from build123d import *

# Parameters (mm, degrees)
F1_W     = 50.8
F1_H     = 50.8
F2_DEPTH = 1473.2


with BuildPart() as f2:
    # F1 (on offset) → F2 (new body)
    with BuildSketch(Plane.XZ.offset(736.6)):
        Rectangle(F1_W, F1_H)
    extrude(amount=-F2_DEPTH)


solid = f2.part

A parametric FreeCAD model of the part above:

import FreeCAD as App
import Part
import Sketcher
Q = App.Units.Quantity


def add_polygon(sketch, points):
    """Adds a closed chain of lines whose ends are joined by coincident constraints."""
    first, n = sketch.GeometryCount, len(points)
    for a, b in zip(points, points[1:] + points[:1]):
        sketch.addGeometry(Part.LineSegment(App.Vector(*a, 0), App.Vector(*b, 0)), False)
    for i in range(n):
        sketch.addConstraint(Sketcher.Constraint("Coincident", first + i, 2, first + (i + 1) % n, 1))

doc = App.newDocument("Part")
body = doc.addObject("PartDesign::Body", "Body")

sketch1 = doc.addObject("Sketcher::SketchObject", "Sketch")
body.addObject(sketch1)
sketch1.AttachmentSupport = (doc.XZ_Plane, [""])
sketch1.MapMode = "FlatFace"
sketch1.AttachmentOffset = App.Placement(App.Vector(0, 0, 29 * 25.4), App.Rotation())
add_polygon(sketch1, [(-25, 25), (-25, -25), (25, -25), (25, 25)])
sketch1.addConstraint([
    Sketcher.Constraint("Vertical", 0),
    Sketcher.Constraint("Horizontal", 1),
    Sketcher.Constraint("Vertical", 2),
    Sketcher.Constraint("Horizontal", 3),
    Sketcher.Constraint("Symmetric", 0, 2, 2, 2, -1, 1),
    Sketcher.Constraint("Equal", 3, 0),
    Sketcher.Constraint("DistanceX", 1, 1, 1, 2, Q("2 in")),
])
pad1 = doc.addObject("PartDesign::Pad", "Pad")
body.addObject(pad1)
pad1.Profile = sketch1
pad1.Length = Q("58 in")
pad1.Reversed = True

doc.recompute()
